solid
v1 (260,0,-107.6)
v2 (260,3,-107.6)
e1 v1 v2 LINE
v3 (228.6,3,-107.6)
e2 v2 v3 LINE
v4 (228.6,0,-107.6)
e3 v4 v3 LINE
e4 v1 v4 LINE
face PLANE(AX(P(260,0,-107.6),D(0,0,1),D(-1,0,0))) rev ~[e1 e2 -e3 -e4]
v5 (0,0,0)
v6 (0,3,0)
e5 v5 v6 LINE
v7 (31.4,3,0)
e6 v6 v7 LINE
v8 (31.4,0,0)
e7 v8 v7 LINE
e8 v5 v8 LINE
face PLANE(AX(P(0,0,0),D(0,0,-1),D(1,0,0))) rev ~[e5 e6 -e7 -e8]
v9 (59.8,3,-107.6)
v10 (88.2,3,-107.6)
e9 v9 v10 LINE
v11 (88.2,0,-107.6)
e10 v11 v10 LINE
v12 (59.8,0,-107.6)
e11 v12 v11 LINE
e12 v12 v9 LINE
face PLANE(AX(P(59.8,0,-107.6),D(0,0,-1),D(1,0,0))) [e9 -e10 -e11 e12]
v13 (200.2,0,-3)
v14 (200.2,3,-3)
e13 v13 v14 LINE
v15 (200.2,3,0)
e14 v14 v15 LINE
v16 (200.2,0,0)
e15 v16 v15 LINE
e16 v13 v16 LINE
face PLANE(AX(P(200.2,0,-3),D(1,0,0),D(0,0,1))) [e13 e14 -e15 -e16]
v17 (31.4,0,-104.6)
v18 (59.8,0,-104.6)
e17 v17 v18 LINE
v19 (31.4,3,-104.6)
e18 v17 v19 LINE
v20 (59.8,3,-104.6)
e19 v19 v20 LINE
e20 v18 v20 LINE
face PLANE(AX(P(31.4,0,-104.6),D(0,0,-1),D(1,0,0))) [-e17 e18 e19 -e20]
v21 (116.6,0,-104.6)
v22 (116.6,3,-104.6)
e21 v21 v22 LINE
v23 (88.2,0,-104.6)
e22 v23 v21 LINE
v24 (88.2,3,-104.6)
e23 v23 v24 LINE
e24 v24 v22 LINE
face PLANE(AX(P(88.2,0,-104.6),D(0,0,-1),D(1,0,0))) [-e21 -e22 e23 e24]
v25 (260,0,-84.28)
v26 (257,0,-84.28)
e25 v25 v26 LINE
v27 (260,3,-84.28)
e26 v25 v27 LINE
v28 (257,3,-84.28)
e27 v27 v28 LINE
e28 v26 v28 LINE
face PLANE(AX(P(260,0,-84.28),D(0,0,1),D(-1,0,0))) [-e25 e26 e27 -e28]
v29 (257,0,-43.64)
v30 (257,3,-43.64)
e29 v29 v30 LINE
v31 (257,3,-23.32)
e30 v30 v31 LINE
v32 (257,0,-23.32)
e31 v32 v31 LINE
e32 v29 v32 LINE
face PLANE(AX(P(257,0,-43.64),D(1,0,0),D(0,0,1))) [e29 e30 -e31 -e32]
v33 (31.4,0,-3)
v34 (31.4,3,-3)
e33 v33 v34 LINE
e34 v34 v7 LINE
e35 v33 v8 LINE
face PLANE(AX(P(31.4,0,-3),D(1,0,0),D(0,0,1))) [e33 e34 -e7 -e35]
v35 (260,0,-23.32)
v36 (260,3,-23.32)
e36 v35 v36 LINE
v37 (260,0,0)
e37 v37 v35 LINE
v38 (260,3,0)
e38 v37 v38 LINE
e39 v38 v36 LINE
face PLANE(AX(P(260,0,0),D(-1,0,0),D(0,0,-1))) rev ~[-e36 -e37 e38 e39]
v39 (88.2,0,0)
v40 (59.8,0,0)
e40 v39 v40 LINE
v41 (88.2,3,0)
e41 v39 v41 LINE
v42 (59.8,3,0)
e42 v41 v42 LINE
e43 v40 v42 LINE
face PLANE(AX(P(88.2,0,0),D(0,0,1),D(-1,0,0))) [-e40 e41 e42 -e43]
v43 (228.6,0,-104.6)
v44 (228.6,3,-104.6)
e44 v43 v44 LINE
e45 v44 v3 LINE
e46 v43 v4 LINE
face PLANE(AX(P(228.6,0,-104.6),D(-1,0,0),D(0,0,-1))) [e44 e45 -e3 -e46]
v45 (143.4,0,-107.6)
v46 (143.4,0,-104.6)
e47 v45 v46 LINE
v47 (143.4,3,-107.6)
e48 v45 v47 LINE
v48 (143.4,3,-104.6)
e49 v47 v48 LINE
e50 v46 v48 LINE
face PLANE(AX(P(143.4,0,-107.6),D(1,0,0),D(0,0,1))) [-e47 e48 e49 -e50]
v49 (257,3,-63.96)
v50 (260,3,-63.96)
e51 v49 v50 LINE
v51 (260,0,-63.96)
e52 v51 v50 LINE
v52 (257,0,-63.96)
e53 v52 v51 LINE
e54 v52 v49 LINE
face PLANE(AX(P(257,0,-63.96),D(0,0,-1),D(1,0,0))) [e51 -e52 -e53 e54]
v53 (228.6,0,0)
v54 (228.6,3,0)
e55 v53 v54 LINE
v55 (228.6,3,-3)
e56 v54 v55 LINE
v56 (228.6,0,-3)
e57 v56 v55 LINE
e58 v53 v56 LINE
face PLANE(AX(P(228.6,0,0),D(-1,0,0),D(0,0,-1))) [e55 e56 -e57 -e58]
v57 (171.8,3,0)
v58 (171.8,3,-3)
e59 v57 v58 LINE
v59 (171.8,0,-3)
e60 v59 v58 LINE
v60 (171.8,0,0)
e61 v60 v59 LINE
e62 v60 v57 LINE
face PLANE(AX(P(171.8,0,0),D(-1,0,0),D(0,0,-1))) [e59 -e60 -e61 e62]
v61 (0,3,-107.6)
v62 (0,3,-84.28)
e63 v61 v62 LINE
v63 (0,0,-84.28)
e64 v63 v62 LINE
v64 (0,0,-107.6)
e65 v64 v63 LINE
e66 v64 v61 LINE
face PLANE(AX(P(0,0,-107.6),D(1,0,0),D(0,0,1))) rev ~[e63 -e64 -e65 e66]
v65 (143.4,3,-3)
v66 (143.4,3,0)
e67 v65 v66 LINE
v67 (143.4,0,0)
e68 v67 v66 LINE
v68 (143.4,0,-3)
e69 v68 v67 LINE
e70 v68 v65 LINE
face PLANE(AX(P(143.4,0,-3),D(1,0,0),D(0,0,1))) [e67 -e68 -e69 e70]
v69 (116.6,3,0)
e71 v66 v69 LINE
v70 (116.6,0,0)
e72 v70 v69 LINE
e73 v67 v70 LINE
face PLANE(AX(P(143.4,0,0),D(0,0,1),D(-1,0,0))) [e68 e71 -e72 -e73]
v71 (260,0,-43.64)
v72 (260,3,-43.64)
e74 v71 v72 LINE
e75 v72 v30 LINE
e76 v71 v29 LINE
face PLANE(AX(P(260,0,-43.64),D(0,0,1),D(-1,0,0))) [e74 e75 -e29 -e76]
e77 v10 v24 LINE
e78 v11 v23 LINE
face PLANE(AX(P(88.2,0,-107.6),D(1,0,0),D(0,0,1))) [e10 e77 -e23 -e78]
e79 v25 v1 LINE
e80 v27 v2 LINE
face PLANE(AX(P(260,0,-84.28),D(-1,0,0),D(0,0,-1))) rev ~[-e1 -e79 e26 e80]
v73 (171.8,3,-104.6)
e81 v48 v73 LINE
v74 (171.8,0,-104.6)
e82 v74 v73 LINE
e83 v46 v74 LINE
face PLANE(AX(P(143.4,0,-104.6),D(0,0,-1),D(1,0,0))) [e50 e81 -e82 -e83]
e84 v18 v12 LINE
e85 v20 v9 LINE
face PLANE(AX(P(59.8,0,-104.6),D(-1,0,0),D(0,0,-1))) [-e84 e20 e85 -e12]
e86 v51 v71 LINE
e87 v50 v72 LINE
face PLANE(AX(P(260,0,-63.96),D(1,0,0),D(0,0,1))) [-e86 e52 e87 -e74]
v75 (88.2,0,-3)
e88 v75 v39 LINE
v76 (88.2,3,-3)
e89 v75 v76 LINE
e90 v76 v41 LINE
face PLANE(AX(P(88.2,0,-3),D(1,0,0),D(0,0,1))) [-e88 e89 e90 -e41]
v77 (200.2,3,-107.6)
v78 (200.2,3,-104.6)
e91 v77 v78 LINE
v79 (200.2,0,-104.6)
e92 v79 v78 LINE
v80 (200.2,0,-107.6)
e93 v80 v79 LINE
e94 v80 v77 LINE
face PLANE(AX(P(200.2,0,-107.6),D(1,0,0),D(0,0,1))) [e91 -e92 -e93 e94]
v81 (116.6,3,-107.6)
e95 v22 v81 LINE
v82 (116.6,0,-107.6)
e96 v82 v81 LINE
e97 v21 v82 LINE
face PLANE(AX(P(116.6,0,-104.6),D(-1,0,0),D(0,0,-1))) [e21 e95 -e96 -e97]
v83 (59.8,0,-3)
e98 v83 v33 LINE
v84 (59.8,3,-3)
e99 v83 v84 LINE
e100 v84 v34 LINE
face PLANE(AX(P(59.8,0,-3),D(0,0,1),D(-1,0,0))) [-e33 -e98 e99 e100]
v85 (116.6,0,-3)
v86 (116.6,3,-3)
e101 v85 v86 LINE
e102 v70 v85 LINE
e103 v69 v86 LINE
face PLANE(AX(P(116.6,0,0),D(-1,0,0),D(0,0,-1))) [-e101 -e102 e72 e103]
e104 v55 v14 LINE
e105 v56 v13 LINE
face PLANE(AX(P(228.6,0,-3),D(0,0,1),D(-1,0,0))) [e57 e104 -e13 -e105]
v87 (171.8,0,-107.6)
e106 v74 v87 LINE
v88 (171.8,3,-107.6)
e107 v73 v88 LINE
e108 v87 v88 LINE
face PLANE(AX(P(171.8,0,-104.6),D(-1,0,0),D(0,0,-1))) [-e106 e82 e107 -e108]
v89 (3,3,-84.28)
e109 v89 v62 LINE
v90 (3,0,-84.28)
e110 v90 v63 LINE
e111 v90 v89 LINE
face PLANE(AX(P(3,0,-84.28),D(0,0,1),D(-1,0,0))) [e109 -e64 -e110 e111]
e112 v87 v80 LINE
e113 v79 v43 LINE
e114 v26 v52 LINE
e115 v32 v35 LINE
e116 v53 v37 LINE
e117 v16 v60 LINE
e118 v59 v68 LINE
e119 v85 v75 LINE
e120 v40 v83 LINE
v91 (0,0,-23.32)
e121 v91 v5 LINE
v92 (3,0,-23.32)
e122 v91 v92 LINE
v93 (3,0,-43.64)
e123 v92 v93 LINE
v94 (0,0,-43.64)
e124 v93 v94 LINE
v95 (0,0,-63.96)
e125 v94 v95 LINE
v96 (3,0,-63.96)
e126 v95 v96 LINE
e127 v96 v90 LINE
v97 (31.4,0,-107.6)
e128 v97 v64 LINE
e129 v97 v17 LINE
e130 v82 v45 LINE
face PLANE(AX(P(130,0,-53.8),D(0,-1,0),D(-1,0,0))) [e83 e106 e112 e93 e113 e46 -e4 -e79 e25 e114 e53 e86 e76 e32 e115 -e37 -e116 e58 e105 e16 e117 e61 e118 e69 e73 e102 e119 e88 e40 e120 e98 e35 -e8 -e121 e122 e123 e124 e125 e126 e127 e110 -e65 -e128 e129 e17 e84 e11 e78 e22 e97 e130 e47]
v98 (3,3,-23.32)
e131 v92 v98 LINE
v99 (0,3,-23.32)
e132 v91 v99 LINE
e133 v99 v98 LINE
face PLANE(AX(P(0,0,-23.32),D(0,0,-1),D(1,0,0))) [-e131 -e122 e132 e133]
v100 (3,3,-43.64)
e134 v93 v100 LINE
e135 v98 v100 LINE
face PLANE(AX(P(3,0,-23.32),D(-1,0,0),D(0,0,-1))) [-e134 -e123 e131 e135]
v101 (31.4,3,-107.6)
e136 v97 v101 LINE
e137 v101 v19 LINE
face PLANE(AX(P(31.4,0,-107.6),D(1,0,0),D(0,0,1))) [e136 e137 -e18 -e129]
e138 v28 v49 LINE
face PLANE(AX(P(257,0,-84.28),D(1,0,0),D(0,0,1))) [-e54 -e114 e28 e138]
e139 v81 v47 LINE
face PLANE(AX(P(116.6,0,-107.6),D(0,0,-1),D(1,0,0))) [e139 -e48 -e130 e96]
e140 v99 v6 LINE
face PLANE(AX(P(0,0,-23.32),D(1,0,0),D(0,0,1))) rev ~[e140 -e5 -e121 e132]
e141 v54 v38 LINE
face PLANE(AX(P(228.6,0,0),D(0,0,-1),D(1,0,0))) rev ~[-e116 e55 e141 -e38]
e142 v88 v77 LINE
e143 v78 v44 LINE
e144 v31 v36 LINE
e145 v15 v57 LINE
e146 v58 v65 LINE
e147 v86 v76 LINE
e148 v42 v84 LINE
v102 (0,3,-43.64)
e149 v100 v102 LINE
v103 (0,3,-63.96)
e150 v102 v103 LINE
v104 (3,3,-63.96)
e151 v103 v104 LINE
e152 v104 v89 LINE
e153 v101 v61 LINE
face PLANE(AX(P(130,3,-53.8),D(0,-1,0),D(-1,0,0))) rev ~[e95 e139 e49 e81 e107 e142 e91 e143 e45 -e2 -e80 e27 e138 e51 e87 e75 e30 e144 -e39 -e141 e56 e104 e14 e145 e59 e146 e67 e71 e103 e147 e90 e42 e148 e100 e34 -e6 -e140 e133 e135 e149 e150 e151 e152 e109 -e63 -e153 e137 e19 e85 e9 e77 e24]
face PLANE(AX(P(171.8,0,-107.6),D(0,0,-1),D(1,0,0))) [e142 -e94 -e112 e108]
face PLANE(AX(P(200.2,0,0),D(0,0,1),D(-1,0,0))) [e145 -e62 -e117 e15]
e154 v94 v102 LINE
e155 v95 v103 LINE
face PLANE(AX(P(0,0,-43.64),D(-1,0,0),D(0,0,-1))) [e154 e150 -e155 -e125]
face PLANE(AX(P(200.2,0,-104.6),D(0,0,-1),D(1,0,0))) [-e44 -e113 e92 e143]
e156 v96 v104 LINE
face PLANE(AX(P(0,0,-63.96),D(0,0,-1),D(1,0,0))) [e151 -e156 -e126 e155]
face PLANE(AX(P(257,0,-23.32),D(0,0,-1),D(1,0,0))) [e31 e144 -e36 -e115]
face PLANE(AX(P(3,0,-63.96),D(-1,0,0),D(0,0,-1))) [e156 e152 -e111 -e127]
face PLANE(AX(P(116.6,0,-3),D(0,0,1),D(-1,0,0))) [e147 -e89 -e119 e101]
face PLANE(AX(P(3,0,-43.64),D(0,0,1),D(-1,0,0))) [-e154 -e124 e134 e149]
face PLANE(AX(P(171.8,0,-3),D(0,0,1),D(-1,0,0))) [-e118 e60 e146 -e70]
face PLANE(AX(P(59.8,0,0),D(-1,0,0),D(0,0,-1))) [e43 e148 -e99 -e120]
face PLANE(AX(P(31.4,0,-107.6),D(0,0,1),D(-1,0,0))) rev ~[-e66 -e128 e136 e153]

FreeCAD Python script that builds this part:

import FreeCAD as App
import Part
import Sketcher


def add_polygon(sketch, points):
    """Adds a closed chain of lines whose ends are joined by coincident constraints."""
    first, n = sketch.GeometryCount, len(points)
    for a, b in zip(points, points[1:] + points[:1]):
        sketch.addGeometry(Part.LineSegment(App.Vector(*a, 0), App.Vector(*b, 0)), False)
    for i in range(n):
        sketch.addConstraint(Sketcher.Constraint("Coincident", first + i, 2, first + (i + 1) % n, 1))

doc = App.newDocument("Part")
body = doc.addObject("PartDesign::Body", "Body")

# Sketch on XZ plane
sketch1 = body.newObject("Sketcher::SketchObject", "Sketch")
sketch1.AttachmentSupport = (doc.getObject("XZ_Plane"), [""])
sketch1.MapMode = "FlatFace"
add_polygon(sketch1, [(31.4, -107.6), (0, -107.6), (0, -84.28), (3, -84.28), (3, -63.96), (0, -63.96), (0, -43.64), (3, -43.64), (3, -23.32), (0, -23.32), (0, 0), (31.4, 0), (31.4, -3), (59.8, -3), (59.8, 0), (88.2, 0), (88.2, -3), (116.6, -3), (116.6, 0), (143.4, 0), (143.4, -3), (171.8, -3), (171.8, 0), (200.2, 0), (200.2, -3), (228.6, -3), (228.6, 0), (260, 0), (260, -23.32), (257, -23.32), (257, -43.64), (260, -43.64), (260, -63.96), (257, -63.96), (257, -84.28), (260, -84.28), (260, -107.6), (228.6, -107.6), (228.6, -104.6), (200.2, -104.6), (200.2, -107.6), (171.8, -107.6), (171.8, -104.6), (143.4, -104.6), (143.4, -107.6), (116.6, -107.6), (116.6, -104.6), (88.2, -104.6), (88.2, -107.6), (59.8, -107.6), (59.8, -104.6), (31.4, -104.6)])  # lines 0-51
sketch1.addConstraint([
    Sketcher.Constraint("Horizontal", 0),
    Sketcher.Constraint("Vertical", 1),
    Sketcher.Constraint("Horizontal", 2),
    Sketcher.Constraint("Vertical", 3),
    Sketcher.Constraint("Horizontal", 4),
    Sketcher.Constraint("Vertical", 5),
    Sketcher.Constraint("Horizontal", 6),
    Sketcher.Constraint("Vertical", 7),
    Sketcher.Constraint("Horizontal", 8),
    Sketcher.Constraint("Vertical", 9),
    Sketcher.Constraint("Horizontal", 10),
    Sketcher.Constraint("Vertical", 11),
    Sketcher.Constraint("Horizontal", 12),
    Sketcher.Constraint("Vertical", 13),
    Sketcher.Constraint("Horizontal", 14),
    Sketcher.Constraint("Vertical", 15),
    Sketcher.Constraint("Horizontal", 16),
    Sketcher.Constraint("Vertical", 17),
    Sketcher.Constraint("Horizontal", 18),
    Sketcher.Constraint("Vertical", 19),
    Sketcher.Constraint("Horizontal", 20),
    Sketcher.Constraint("Vertical", 21),
    Sketcher.Constraint("Horizontal", 22),
    Sketcher.Constraint("Vertical", 23),
    Sketcher.Constraint("Horizontal", 24),
    Sketcher.Constraint("Vertical", 25),
    Sketcher.Constraint("Horizontal", 26),
    Sketcher.Constraint("Vertical", 27),
    Sketcher.Constraint("Horizontal", 28),
    Sketcher.Constraint("Vertical", 29),
    Sketcher.Constraint("Horizontal", 30),
    Sketcher.Constraint("Vertical", 31),
    Sketcher.Constraint("Horizontal", 32),
    Sketcher.Constraint("Vertical", 33),
    Sketcher.Constraint("Horizontal", 34),
    Sketcher.Constraint("Vertical", 35),
    Sketcher.Constraint("Horizontal", 36),
    Sketcher.Constraint("Vertical", 37),
    Sketcher.Constraint("Horizontal", 38),
    Sketcher.Constraint("Vertical", 39),
    Sketcher.Constraint("Horizontal", 40),
    Sketcher.Constraint("Vertical", 41),
    Sketcher.Constraint("Horizontal", 42),
    Sketcher.Constraint("Vertical", 43),
    Sketcher.Constraint("Horizontal", 44),
    Sketcher.Constraint("Vertical", 45),
    Sketcher.Constraint("Horizontal", 46),
    Sketcher.Constraint("Vertical", 47),
    Sketcher.Constraint("Horizontal", 48),
    Sketcher.Constraint("Vertical", 49),
    Sketcher.Constraint("Horizontal", 50),
    Sketcher.Constraint("Vertical", 51),
    Sketcher.Constraint("Coincident", 9, 2, -1, 1),
    Sketcher.Constraint("PointOnObject", 0, 2, -2),
    Sketcher.Constraint("PointOnObject", 4, 2, -2),
    Sketcher.Constraint("PointOnObject", 13, 2, -1),
    Sketcher.Constraint("PointOnObject", 17, 2, -1),
    Sketcher.Constraint("PointOnObject", 21, 2, -1),
    Sketcher.Constraint("PointOnObject", 25, 2, -1),
    Sketcher.Constraint("Horizontal", 12, 2, 15, 2),
    Sketcher.Constraint("Horizontal", 16, 2, 19, 2),
    Sketcher.Constraint("Horizontal", 20, 2, 23, 2),
    Sketcher.Constraint("Horizontal", 8, 2, 27, 2),
    Sketcher.Constraint("Horizontal", 6, 2, 29, 2),
    Sketcher.Constraint("Horizontal", 4, 2, 31, 2),
    Sketcher.Constraint("Horizontal", 2, 2, 33, 2),
    Sketcher.Constraint("Horizontal", 0, 2, 35, 2),
    Sketcher.Constraint("Horizontal", 36, 2, 39, 2),
    Sketcher.Constraint("Horizontal", 38, 2, 41, 2),
    Sketcher.Constraint("Horizontal", 40, 2, 43, 2),
    Sketcher.Constraint("Horizontal", 42, 2, 45, 2),
    Sketcher.Constraint("Horizontal", 44, 2, 47, 2),
    Sketcher.Constraint("Horizontal", 46, 2, 49, 2),
    Sketcher.Constraint("Vertical", 3, 2, 6, 2),
    Sketcher.Constraint("Vertical", 27, 2, 30, 2),
    Sketcher.Constraint("Vertical", 29, 2, 32, 2),
    Sketcher.Constraint("Vertical", 31, 2, 34, 2),
    Sketcher.Constraint("Vertical", 25, 2, 36, 2),
    Sketcher.Constraint("Vertical", 23, 2, 38, 2),
    Sketcher.Constraint("Vertical", 21, 2, 40, 2),
    Sketcher.Constraint("Vertical", 19, 2, 42, 2),
    Sketcher.Constraint("Vertical", 17, 2, 44, 2),
    Sketcher.Constraint("Vertical", 15, 2, 46, 2),
    Sketcher.Constraint("Vertical", 13, 2, 48, 2),
    Sketcher.Constraint("Vertical", 11, 2, 50, 2),
    Sketcher.Constraint("Equal", 12, 14),
    Sketcher.Constraint("Equal", 14, 16),
    Sketcher.Constraint("Equal", 16, 20),
    Sketcher.Constraint("Equal", 20, 22),
    Sketcher.Constraint("Equal", 22, 24),
    Sketcher.Constraint("Equal", 10, 26),
    Sketcher.Constraint("Equal", 8, 28),
    Sketcher.Constraint("Equal", 3, 5),
    Sketcher.Constraint("Equal", 5, 7),
    Sketcher.Constraint("Equal", 1, 9),
    Sketcher.Constraint("Equal", 34, 11),
    Sketcher.Constraint("Equal", 25, 37),
    Sketcher.Constraint("DistanceX", 2, 1, 2, 2, 3.0),
    Sketcher.Constraint("DistanceX", 0, 2, 0, 1, 31.4),
    Sketcher.Constraint("DistanceX", 12, 1, 12, 2, 28.4),
    Sketcher.Constraint("DistanceX", 18, 1, 18, 2, 26.8),
    Sketcher.Constraint("DistanceY", 1, 1, 1, 2, 23.32),
    Sketcher.Constraint("DistanceY", 3, 1, 3, 2, 20.32),
])
pad1 = body.newObject("PartDesign::Pad", "Pad")
pad1.Profile = sketch1
pad1.Length = 3
pad1.Reversed = True

doc.recompute()
